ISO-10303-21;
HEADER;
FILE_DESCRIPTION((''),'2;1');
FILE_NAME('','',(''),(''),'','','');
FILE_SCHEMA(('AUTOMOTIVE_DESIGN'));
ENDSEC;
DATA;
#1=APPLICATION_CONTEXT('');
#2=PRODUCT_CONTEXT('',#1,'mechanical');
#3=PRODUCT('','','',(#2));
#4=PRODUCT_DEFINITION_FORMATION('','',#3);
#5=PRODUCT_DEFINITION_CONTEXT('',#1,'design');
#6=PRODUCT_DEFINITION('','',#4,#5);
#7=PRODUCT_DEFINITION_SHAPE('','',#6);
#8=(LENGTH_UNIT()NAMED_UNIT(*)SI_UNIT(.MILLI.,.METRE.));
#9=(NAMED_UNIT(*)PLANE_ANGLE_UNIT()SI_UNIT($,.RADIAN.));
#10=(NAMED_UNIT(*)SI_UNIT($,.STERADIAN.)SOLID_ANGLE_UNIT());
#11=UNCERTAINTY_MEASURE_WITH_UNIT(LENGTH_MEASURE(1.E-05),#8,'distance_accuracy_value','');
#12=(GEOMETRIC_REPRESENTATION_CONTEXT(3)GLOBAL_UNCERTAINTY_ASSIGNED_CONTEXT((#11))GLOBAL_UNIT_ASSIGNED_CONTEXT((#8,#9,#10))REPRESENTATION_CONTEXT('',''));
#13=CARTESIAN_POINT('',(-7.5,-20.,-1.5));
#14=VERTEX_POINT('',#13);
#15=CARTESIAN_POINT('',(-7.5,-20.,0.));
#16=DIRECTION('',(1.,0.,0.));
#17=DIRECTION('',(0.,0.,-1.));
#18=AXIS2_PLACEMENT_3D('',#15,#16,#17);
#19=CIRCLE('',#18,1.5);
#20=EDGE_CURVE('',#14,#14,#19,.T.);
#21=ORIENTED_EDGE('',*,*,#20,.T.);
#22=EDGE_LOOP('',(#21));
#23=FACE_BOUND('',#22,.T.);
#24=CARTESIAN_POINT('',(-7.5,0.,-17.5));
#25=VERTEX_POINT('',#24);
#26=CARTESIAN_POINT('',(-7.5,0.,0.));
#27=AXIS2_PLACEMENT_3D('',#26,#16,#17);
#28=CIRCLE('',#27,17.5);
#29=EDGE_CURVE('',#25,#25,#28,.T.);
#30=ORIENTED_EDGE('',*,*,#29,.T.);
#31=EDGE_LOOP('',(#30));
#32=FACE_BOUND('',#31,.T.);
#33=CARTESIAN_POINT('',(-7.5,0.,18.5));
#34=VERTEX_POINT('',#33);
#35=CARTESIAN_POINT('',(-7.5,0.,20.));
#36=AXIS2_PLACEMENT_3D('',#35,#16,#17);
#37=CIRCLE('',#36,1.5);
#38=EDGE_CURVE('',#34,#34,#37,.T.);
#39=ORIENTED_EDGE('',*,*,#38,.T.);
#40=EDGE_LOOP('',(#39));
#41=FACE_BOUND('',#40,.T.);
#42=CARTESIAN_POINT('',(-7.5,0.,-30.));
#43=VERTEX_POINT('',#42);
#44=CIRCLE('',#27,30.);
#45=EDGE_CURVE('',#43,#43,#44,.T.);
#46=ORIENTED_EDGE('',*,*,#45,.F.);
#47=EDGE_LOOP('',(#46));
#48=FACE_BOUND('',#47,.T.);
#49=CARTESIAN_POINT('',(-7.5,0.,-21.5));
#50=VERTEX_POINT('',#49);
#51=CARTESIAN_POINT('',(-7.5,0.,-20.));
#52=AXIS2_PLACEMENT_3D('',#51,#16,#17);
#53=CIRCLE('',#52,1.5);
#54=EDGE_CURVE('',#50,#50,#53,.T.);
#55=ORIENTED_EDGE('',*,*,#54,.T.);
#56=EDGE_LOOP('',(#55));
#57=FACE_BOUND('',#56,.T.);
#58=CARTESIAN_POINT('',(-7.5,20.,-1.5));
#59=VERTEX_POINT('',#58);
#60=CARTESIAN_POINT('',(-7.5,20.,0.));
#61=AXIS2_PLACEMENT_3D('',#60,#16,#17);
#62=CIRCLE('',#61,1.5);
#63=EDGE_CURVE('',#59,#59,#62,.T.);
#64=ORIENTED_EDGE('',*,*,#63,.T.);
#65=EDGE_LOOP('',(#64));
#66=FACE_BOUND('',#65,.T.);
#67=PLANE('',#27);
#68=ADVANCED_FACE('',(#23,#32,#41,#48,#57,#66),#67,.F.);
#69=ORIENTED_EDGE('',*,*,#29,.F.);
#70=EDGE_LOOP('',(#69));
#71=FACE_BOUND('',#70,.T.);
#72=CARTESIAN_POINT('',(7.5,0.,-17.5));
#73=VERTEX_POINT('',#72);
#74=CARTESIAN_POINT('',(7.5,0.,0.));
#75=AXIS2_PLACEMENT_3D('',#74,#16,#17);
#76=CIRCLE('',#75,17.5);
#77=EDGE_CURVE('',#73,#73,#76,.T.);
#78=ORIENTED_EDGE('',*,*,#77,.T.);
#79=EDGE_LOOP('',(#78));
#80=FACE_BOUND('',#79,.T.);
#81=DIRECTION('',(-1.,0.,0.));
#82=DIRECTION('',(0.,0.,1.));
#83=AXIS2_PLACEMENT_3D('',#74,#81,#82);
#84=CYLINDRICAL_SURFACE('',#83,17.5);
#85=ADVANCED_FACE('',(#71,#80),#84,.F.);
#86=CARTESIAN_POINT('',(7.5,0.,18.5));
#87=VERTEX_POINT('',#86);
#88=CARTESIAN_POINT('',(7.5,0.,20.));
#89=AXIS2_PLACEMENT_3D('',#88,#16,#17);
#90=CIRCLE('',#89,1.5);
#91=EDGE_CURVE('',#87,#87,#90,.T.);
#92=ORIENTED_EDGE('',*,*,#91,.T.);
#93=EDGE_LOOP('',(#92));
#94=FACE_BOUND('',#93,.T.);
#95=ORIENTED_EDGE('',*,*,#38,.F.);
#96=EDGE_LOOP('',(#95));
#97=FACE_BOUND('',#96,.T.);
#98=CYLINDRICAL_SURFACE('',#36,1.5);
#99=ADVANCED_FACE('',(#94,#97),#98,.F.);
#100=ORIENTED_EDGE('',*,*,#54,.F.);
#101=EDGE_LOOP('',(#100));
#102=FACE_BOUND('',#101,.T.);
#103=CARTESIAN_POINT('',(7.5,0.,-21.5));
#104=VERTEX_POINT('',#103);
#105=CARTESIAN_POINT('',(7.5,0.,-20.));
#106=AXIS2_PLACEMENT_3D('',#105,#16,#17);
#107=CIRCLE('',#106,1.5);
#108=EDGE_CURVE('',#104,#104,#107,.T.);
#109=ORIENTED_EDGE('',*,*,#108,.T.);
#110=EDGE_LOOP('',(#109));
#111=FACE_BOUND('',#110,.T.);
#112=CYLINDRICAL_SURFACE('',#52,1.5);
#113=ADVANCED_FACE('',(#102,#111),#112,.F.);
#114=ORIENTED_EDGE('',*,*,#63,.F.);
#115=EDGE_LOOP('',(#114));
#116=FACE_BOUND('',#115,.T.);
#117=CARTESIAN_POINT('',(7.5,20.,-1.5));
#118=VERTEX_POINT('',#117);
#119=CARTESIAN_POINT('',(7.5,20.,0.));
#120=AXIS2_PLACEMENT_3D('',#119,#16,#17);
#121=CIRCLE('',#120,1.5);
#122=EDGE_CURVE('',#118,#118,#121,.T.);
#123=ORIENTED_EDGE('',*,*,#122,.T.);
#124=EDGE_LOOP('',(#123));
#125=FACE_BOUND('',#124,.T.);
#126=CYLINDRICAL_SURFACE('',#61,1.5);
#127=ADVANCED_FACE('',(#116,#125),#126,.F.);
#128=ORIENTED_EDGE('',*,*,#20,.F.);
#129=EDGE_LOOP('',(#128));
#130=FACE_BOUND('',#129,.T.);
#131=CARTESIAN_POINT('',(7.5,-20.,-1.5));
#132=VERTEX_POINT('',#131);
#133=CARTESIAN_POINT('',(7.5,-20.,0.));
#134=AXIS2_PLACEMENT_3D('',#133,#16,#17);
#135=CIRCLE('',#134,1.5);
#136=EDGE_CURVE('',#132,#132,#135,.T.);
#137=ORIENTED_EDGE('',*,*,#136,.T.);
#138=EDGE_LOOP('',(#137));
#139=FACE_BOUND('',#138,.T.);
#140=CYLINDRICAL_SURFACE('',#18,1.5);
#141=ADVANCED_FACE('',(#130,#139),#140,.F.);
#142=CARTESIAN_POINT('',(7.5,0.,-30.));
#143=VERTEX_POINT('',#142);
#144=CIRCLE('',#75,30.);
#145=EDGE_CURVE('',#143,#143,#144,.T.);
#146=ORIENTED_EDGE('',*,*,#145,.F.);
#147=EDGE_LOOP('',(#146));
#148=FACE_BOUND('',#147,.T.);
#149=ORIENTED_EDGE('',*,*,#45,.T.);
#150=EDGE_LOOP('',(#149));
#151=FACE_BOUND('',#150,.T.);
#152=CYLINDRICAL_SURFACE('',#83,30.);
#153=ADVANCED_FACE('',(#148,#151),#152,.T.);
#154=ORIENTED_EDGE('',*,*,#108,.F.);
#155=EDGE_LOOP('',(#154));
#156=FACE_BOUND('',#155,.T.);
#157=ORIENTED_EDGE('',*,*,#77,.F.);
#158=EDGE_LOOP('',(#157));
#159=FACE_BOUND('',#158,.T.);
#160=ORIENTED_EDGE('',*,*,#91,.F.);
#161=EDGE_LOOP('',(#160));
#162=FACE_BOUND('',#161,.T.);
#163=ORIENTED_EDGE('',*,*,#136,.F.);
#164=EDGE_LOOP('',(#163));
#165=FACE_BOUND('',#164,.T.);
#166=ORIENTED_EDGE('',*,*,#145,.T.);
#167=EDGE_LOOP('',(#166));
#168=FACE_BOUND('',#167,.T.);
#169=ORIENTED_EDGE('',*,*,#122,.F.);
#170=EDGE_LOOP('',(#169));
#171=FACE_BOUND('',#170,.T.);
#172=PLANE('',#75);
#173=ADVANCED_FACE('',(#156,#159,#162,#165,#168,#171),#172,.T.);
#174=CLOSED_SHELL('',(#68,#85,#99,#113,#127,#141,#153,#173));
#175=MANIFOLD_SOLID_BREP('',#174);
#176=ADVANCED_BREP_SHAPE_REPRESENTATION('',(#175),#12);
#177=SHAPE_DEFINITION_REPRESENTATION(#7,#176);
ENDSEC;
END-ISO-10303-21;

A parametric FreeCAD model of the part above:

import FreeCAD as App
import Part
import Sketcher

V = App.Vector

doc = App.newDocument("Part")
params = doc.addObject("Spreadsheet::Sheet", "Params")
for row, (alias, value) in enumerate([
    ("sketch1_diameter", "60 mm"),
    ("sketch1_diameter2", "35 mm"),
    ("pad1_length", "15 mm"),
    ("sketch2_diameter", "3 mm"),
], start=1):
    params.set(f"A{row}", alias)
    params.set(f"B{row}", "=" + value)
    params.setAlias(f"B{row}", alias)

body = doc.addObject("PartDesign::Body", "Body")

sketch1 = body.newObject("Sketcher::SketchObject", "Sketch")
sketch1.AttachmentSupport = (doc.getObject("YZ_Plane"), [""])
sketch1.MapMode = "FlatFace"
sketch1.addGeometry([
    Part.Circle(V(0, 0, 0), V(0, 0, 1), 30),
    Part.Circle(V(0, 0, 0), V(0, 0, 1), 18),
], False)
sketch1.addConstraint([
    Sketcher.Constraint("Coincident", 0, 3, -1, 1),
    Sketcher.Constraint("Coincident", 1, 3, -1, 1),
    Sketcher.Constraint("Diameter", 0, 60.0),
    Sketcher.Constraint("Diameter", 1, 35.0),
])
sketch1.setExpression("Constraints[2]", "Params.sketch1_diameter")
sketch1.setExpression("Constraints[3]", "Params.sketch1_diameter2")
pad1 = body.newObject("PartDesign::Pad", "Pad")
pad1.Profile = sketch1
pad1.setExpression("Length", "Params.pad1_length")
pad1.Midplane = True

sketch2 = body.newObject("Sketcher::SketchObject", "Sketch001")
sketch2.AttachmentSupport = (doc.getObject("YZ_Plane"), [""])
sketch2.MapMode = "FlatFace"
sketch2.AttachmentOffset = App.Placement(V(0, 0, 7.5), App.Rotation())
sketch2.addGeometry([
    Part.Circle(V(20, 0, 0), V(0, 0, 1), 1.5),
    Part.Circle(V(0, -20, 0), V(0, 0, 1), 1.5),
    Part.Circle(V(-20, 0, 0), V(0, 0, 1), 1.5),
    Part.Circle(V(0, 20, 0), V(0, 0, 1), 1.5),
], False)
sketch2.addConstraint([
    Sketcher.Constraint("Equal", 0, 1),
    Sketcher.Constraint("Equal", 1, 2),
    Sketcher.Constraint("Equal", 2, 3),
    Sketcher.Constraint("Symmetric", 0, 3, 2, 3, -1, 1),
    Sketcher.Constraint("Symmetric", 1, 3, 3, 3, -1, 1),
    Sketcher.Constraint("PointOnObject", 0, 3, -1),
    Sketcher.Constraint("PointOnObject", 1, 3, -2),
    Sketcher.Constraint("Diameter", 0, 3.0),
    Sketcher.Constraint("DistanceX", -1, 1, 0, 3, 20.0),
    Sketcher.Constraint("DistanceY", 1, 3, -1, 1, 20.0),
])
sketch2.setExpression("Constraints[7]", "Params.sketch2_diameter")
pocket1 = body.newObject("PartDesign::Pocket", "Pocket")
pocket1.Profile = sketch2
pocket1.Type = "ThroughAll"

doc.recompute()
